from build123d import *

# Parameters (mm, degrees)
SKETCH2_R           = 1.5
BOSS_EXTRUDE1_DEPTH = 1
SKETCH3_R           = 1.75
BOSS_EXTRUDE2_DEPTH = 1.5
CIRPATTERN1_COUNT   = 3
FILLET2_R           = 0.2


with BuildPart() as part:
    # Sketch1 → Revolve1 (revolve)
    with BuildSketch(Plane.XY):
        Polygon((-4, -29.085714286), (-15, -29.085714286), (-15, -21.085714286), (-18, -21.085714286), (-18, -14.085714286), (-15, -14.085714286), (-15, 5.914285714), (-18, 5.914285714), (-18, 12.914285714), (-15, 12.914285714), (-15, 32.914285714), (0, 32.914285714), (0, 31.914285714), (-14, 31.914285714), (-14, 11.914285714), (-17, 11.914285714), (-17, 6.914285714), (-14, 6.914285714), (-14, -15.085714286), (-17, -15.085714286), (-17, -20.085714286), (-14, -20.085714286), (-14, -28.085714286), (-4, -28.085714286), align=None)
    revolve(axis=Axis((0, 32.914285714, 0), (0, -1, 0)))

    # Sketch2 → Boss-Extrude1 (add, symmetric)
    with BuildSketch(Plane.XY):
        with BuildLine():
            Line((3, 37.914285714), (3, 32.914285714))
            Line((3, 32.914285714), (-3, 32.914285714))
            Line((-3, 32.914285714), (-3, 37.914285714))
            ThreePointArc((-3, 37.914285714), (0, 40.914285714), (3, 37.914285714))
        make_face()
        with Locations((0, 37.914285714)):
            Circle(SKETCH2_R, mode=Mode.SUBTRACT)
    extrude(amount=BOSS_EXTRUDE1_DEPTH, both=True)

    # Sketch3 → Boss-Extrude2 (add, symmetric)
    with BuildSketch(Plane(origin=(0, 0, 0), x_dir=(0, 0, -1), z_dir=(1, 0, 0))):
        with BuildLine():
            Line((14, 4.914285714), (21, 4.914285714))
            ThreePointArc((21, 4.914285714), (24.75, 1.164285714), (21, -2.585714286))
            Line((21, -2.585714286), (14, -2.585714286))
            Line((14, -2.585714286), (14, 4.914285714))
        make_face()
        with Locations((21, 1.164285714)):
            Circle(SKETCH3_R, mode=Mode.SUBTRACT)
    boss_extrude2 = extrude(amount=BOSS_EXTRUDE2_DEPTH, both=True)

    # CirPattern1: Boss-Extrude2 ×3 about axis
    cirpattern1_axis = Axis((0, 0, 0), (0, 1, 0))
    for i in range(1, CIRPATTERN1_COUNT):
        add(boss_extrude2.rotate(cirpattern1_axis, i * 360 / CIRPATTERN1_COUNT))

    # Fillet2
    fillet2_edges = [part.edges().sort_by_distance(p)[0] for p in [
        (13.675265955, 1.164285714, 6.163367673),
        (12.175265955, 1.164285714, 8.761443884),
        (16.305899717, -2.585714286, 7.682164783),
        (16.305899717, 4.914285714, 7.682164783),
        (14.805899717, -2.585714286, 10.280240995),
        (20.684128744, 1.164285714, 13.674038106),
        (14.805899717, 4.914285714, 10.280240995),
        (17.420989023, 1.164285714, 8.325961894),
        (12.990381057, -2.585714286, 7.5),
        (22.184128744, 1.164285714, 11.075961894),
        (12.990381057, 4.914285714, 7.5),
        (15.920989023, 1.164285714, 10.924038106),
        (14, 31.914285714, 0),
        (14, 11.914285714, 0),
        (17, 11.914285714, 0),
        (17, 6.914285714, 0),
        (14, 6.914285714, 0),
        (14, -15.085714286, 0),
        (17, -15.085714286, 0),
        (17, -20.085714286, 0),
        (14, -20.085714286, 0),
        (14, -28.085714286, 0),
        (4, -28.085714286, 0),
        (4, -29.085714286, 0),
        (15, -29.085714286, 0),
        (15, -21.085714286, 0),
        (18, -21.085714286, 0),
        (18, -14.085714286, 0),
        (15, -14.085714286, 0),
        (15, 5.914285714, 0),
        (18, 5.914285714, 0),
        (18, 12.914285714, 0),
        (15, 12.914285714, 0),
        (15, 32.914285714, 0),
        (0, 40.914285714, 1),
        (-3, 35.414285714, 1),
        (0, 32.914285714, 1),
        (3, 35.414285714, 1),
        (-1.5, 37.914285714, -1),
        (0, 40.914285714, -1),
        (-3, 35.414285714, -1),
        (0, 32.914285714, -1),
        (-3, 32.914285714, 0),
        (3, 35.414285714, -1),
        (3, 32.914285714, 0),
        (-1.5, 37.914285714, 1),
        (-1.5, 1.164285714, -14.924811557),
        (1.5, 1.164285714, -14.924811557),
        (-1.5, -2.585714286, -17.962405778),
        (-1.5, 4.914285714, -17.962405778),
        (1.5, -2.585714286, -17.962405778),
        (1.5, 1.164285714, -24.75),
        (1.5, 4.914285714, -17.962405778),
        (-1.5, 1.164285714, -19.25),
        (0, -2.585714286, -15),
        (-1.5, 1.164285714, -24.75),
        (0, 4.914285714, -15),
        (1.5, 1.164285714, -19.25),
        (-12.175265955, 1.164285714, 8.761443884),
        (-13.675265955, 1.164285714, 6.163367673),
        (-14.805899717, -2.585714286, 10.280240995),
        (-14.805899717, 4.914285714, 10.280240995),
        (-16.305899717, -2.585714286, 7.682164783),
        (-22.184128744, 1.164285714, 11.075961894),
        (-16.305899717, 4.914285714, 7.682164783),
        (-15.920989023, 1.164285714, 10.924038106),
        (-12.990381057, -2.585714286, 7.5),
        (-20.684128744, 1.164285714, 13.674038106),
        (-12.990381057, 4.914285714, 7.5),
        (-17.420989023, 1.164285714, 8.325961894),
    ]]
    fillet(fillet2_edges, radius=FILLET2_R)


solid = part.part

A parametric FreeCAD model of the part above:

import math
import FreeCAD as App
import Part
import Sketcher
from FreeCAD import Vector
Q = App.Units.Quantity

doc = App.newDocument("Part")
body = doc.addObject("PartDesign::Body", "Body")

sketch1 = doc.addObject("Sketcher::SketchObject", "Sketch")
body.addObject(sketch1)
sketch1.AttachmentSupport = (doc.XY_Plane, [""])
sketch1.MapMode = "FlatFace"
sketch1.addGeometry(Part.LineSegment(Vector(-15, -29.085714, 0), Vector(-4, -29.085714, 0)), False)
sketch1.addGeometry(Part.LineSegment(Vector(-4, -29.085714, 0), Vector(-4, -28.085714, 0)), False)
sketch1.addGeometry(Part.LineSegment(Vector(-4, -28.085714, 0), Vector(-14, -28.085714, 0)), False)
sketch1.addGeometry(Part.LineSegment(Vector(-14, -28.085714, 0), Vector(-14, -20.085714, 0)), False)
sketch1.addGeometry(Part.LineSegment(Vector(-14, -20.085714, 0), Vector(-17, -20.085714, 0)), False)
sketch1.addGeometry(Part.LineSegment(Vector(-17, -20.085714, 0), Vector(-17, -15.085714, 0)), False)
sketch1.addGeometry(Part.LineSegment(Vector(-17, -15.085714, 0), Vector(-14, -15.085714, 0)), False)
sketch1.addGeometry(Part.LineSegment(Vector(-14, -15.085714, 0), Vector(-14, 6.914286, 0)), False)
sketch1.addGeometry(Part.LineSegment(Vector(-14, 6.914286, 0), Vector(-17, 6.914286, 0)), False)
sketch1.addGeometry(Part.LineSegment(Vector(-17, 6.914286, 0), Vector(-17, 11.914286, 0)), False)
sketch1.addGeometry(Part.LineSegment(Vector(-17, 11.914286, 0), Vector(-14, 11.914286, 0)), False)
sketch1.addGeometry(Part.LineSegment(Vector(-14, 11.914286, 0), Vector(-14, 31.914286, 0)), False)
sketch1.addGeometry(Part.LineSegment(Vector(-14, 31.914286, 0), Vector(0, 31.914286, 0)), False)
sketch1.addGeometry(Part.LineSegment(Vector(0, 31.914286, 0), Vector(0, 32.914286, 0)), False)
sketch1.addGeometry(Part.LineSegment(Vector(0, 32.914286, 0), Vector(-15, 32.914286, 0)), False)
sketch1.addGeometry(Part.LineSegment(Vector(-15, 32.914286, 0), Vector(-15, 12.914286, 0)), False)
sketch1.addGeometry(Part.LineSegment(Vector(-15, 12.914286, 0), Vector(-18, 12.914286, 0)), False)
sketch1.addGeometry(Part.LineSegment(Vector(-18, 12.914286, 0), Vector(-18, 5.914286, 0)), False)
sketch1.addGeometry(Part.LineSegment(Vector(-18, 5.914286, 0), Vector(-15, 5.914286, 0)), False)
sketch1.addGeometry(Part.LineSegment(Vector(-15, 5.914286, 0), Vector(-15, -14.085714, 0)), False)
sketch1.addGeometry(Part.LineSegment(Vector(-15, -14.085714, 0), Vector(-18, -14.085714, 0)), False)
sketch1.addGeometry(Part.LineSegment(Vector(-18, -14.085714, 0), Vector(-18, -21.085714, 0)), False)
sketch1.addGeometry(Part.LineSegment(Vector(-18, -21.085714, 0), Vector(-15, -21.085714, 0)), False)
sketch1.addGeometry(Part.LineSegment(Vector(-15, -21.085714, 0), Vector(-15, -29.085714, 0)), False)
sketch1.addConstraint(Sketcher.Constraint("Coincident", 0, 2, 1, 1))
sketch1.addConstraint(Sketcher.Constraint("Coincident", 1, 2, 2, 1))
sketch1.addConstraint(Sketcher.Constraint("Coincident", 2, 2, 3, 1))
sketch1.addConstraint(Sketcher.Constraint("Coincident", 3, 2, 4, 1))
sketch1.addConstraint(Sketcher.Constraint("Coincident", 4, 2, 5, 1))
sketch1.addConstraint(Sketcher.Constraint("Coincident", 5, 2, 6, 1))
sketch1.addConstraint(Sketcher.Constraint("Coincident", 6, 2, 7, 1))
sketch1.addConstraint(Sketcher.Constraint("Coincident", 7, 2, 8, 1))
sketch1.addConstraint(Sketcher.Constraint("Coincident", 8, 2, 9, 1))
sketch1.addConstraint(Sketcher.Constraint("Coincident", 9, 2, 10, 1))
sketch1.addConstraint(Sketcher.Constraint("Coincident", 10, 2, 11, 1))
sketch1.addConstraint(Sketcher.Constraint("Coincident", 11, 2, 12, 1))
sketch1.addConstraint(Sketcher.Constraint("Coincident", 12, 2, 13, 1))
sketch1.addConstraint(Sketcher.Constraint("Coincident", 13, 2, 14, 1))
sketch1.addConstraint(Sketcher.Constraint("Coincident", 14, 2, 15, 1))
sketch1.addConstraint(Sketcher.Constraint("Coincident", 15, 2, 16, 1))
sketch1.addConstraint(Sketcher.Constraint("Coincident", 16, 2, 17, 1))
sketch1.addConstraint(Sketcher.Constraint("Coincident", 17, 2, 18, 1))
sketch1.addConstraint(Sketcher.Constraint("Coincident", 18, 2, 19, 1))
sketch1.addConstraint(Sketcher.Constraint("Coincident", 19, 2, 20, 1))
sketch1.addConstraint(Sketcher.Constraint("Coincident", 20, 2, 21, 1))
sketch1.addConstraint(Sketcher.Constraint("Coincident", 21, 2, 22, 1))
sketch1.addConstraint(Sketcher.Constraint("Coincident", 22, 2, 23, 1))
sketch1.addConstraint(Sketcher.Constraint("Coincident", 23, 2, 0, 1))
sketch1.addConstraint(Sketcher.Constraint("Horizontal", 0))
sketch1.addConstraint(Sketcher.Constraint("Vertical", 1))
sketch1.addConstraint(Sketcher.Constraint("Horizontal", 2))
sketch1.addConstraint(Sketcher.Constraint("Vertical", 3))
sketch1.addConstraint(Sketcher.Constraint("Horizontal", 4))
sketch1.addConstraint(Sketcher.Constraint("Vertical", 5))
sketch1.addConstraint(Sketcher.Constraint("Horizontal", 6))
sketch1.addConstraint(Sketcher.Constraint("Vertical", 7))
sketch1.addConstraint(Sketcher.Constraint("Horizontal", 8))
sketch1.addConstraint(Sketcher.Constraint("Vertical", 9))
sketch1.addConstraint(Sketcher.Constraint("Horizontal", 10))
sketch1.addConstraint(Sketcher.Constraint("Vertical", 11))
sketch1.addConstraint(Sketcher.Constraint("Horizontal", 12))
sketch1.addConstraint(Sketcher.Constraint("Vertical", 13))
sketch1.addConstraint(Sketcher.Constraint("Horizontal", 14))
sketch1.addConstraint(Sketcher.Constraint("Vertical", 15))
sketch1.addConstraint(Sketcher.Constraint("Horizontal", 16))
sketch1.addConstraint(Sketcher.Constraint("Vertical", 17))
sketch1.addConstraint(Sketcher.Constraint("Horizontal", 18))
sketch1.addConstraint(Sketcher.Constraint("Vertical", 19))
sketch1.addConstraint(Sketcher.Constraint("Horizontal", 20))
sketch1.addConstraint(Sketcher.Constraint("Vertical", 21))
sketch1.addConstraint(Sketcher.Constraint("Horizontal", 22))
sketch1.addConstraint(Sketcher.Constraint("Vertical", 23))
sketch1.addConstraint(Sketcher.Constraint("PointOnObject", 12, 2, -2))
sketch1.addConstraint(Sketcher.Constraint("Vertical", 3, 2, 6, 2))
sketch1.addConstraint(Sketcher.Constraint("Vertical", 5, 2, 8, 2))
sketch1.addConstraint(Sketcher.Constraint("Vertical", 7, 2, 10, 2))
sketch1.addConstraint(Sketcher.Constraint("Vertical", 15, 2, 18, 2))
sketch1.addConstraint(Sketcher.Constraint("Vertical", 17, 2, 20, 2))
sketch1.addConstraint(Sketcher.Constraint("Vertical", 19, 2, 22, 2))
sketch1.addConstraint(Sketcher.Constraint("Equal", 10, 16))
sketch1.addConstraint(Sketcher.Constraint("Equal", 5, 9))
sketch1.addConstraint(Sketcher.Constraint("Equal", 1, 13))
sketch1.addConstraint(Sketcher.Constraint("Equal", 11, 15))
sketch1.addConstraint(Sketcher.Constraint("Equal", 15, 19))
sketch1.addConstraint(Sketcher.Constraint("Equal", 17, 21))
sketch1.addConstraint(Sketcher.Constraint("Equal", 3, 23))
sketch1.addConstraint(Sketcher.Constraint("DistanceX", 0, 1, 0, 2, Q("11 mm")))
sketch1.addConstraint(Sketcher.Constraint("DistanceX", 2, 2, 2, 1, Q("10 mm")))
sketch1.addConstraint(Sketcher.Constraint("DistanceX", 4, 2, 4, 1, Q("3 mm")))
sketch1.addConstraint(Sketcher.Constraint("DistanceX", 12, 1, 12, 2, Q("14 mm")))
sketch1.addConstraint(Sketcher.Constraint("DistanceY", 1, 1, 1, 2, Q("1 mm")))
sketch1.addConstraint(Sketcher.Constraint("DistanceY", 3, 1, 3, 2, Q("8 mm")))
sketch1.addConstraint(Sketcher.Constraint("DistanceY", 5, 1, 5, 2, Q("5 mm")))
sketch1.addConstraint(Sketcher.Constraint("DistanceY", 7, 1, 7, 2, Q("22 mm")))
sketch1.addConstraint(Sketcher.Constraint("DistanceY", 11, 1, 11, 2, Q("20 mm")))
sketch1.addConstraint(Sketcher.Constraint("DistanceY", 0, 2, -1, 1, Q("29.085714 mm")))
revolution = doc.addObject("PartDesign::Revolution", "Revolution")
body.addObject(revolution)
revolution.Profile = sketch1
revolution.ReferenceAxis = (sketch1, ["V_Axis"])
revolution.Angle = 360

sketch2 = doc.addObject("Sketcher::SketchObject", "Sketch001")
body.addObject(sketch2)
sketch2.AttachmentSupport = (doc.XY_Plane, [""])
sketch2.MapMode = "FlatFace"
sketch2.addGeometry(Part.LineSegment(Vector(3, 32.914286, 0), Vector(3, 37.914286, 0)), False)
sketch2.addGeometry(Part.ArcOfCircle(Part.Circle(Vector(0, 37.914286, 0), Vector(0, 0, 1), 3), math.radians(0), math.radians(180)), False)
sketch2.addGeometry(Part.LineSegment(Vector(-3, 37.914286, 0), Vector(-3, 32.914286, 0)), False)
sketch2.addGeometry(Part.LineSegment(Vector(-3, 32.914286, 0), Vector(3, 32.914286, 0)), False)
sketch2.addGeometry(Part.Circle(Vector(0, 37.914286, 0), Vector(0, 0, 1), 1.5), False)
sketch2.addConstraint(Sketcher.Constraint("Tangent", 0, 2, 1, 1))
sketch2.addConstraint(Sketcher.Constraint("Tangent", 1, 2, 2, 1))
sketch2.addConstraint(Sketcher.Constraint("Coincident", 2, 2, 3, 1))
sketch2.addConstraint(Sketcher.Constraint("Coincident", 3, 2, 0, 1))
sketch2.addConstraint(Sketcher.Constraint("Vertical", 0))
sketch2.addConstraint(Sketcher.Constraint("Vertical", 2))
sketch2.addConstraint(Sketcher.Constraint("Horizontal", 3))
sketch2.addConstraint(Sketcher.Constraint("Coincident", 4, 3, 1, 3))
sketch2.addConstraint(Sketcher.Constraint("PointOnObject", 1, 3, -2))
sketch2.addConstraint(Sketcher.Constraint("Diameter", 4, Q("3 mm")))
sketch2.addConstraint(Sketcher.Constraint("Radius", 1, Q("3 mm")))
sketch2.addConstraint(Sketcher.Constraint("DistanceY", 0, 1, 0, 2, Q("5 mm")))
sketch2.addConstraint(Sketcher.Constraint("DistanceY", -1, 1, 1, 3, Q("37.914286 mm")))
pad1 = doc.addObject("PartDesign::Pad", "Pad")
body.addObject(pad1)
pad1.Profile = sketch2
pad1.Length = 2
pad1.Midplane = True

sketch3 = doc.addObject("Sketcher::SketchObject", "Sketch002")
body.addObject(sketch3)
sketch3.AttachmentSupport = (doc.YZ_Plane, [""])
sketch3.MapMode = "FlatFace"
sketch3.addGeometry(Part.LineSegment(Vector(4.914286, -21, 0), Vector(4.914286, -14, 0)), False)
sketch3.addGeometry(Part.LineSegment(Vector(4.914286, -14, 0), Vector(-2.585714, -14, 0)), False)
sketch3.addGeometry(Part.LineSegment(Vector(-2.585714, -14, 0), Vector(-2.585714, -21, 0)), False)
sketch3.addGeometry(Part.ArcOfCircle(Part.Circle(Vector(1.164286, -21, 0), Vector(0, 0, 1), 3.75), math.radians(180), math.radians(360)), False)
sketch3.addGeometry(Part.Circle(Vector(1.164286, -21, 0), Vector(0, 0, 1), 1.75), False)
sketch3.addConstraint(Sketcher.Constraint("Coincident", 0, 2, 1, 1))
sketch3.addConstraint(Sketcher.Constraint("Coincident", 1, 2, 2, 1))
sketch3.addConstraint(Sketcher.Constraint("Tangent", 2, 2, 3, 1))
sketch3.addConstraint(Sketcher.Constraint("Tangent", 3, 2, 0, 1))
sketch3.addConstraint(Sketcher.Constraint("Vertical", 0))
sketch3.addConstraint(Sketcher.Constraint("Horizontal", 1))
sketch3.addConstraint(Sketcher.Constraint("Vertical", 2))
sketch3.addConstraint(Sketcher.Constraint("Coincident", 4, 3, 3, 3))
sketch3.addConstraint(Sketcher.Constraint("Diameter", 4, Q("3.5 mm")))
sketch3.addConstraint(Sketcher.Constraint("DistanceY", 0, 1, 0, 2, Q("7 mm")))
sketch3.addConstraint(Sketcher.Constraint("Radius", 3, Q("3.75 mm")))
sketch3.addConstraint(Sketcher.Constraint("DistanceY", 3, 3, -1, 1, Q("21 mm")))
sketch3.addConstraint(Sketcher.Constraint("DistanceX", -1, 1, 3, 3, Q("1.164286 mm")))
pad2 = doc.addObject("PartDesign::Pad", "Pad001")
body.addObject(pad2)
pad2.Profile = sketch3
pad2.Length = 3
pad2.Midplane = True
doc.recompute()

polarpattern = doc.addObject("PartDesign::PolarPattern", "PolarPattern")
body.addObject(polarpattern)
polarpattern.Originals = [pad2]
polarpattern.Axis = (doc.Y_Axis, [""])
polarpattern.Angle = 360
polarpattern.Occurrences = 3
body.Tip = polarpattern
doc.recompute()

fillet = doc.addObject("PartDesign::Fillet", "Fillet")
body.addObject(fillet)
fillet.Base = (polarpattern, ["Edge1"])
fillet.UseAllEdges = True
fillet.Radius = 0.2

doc.recompute()
